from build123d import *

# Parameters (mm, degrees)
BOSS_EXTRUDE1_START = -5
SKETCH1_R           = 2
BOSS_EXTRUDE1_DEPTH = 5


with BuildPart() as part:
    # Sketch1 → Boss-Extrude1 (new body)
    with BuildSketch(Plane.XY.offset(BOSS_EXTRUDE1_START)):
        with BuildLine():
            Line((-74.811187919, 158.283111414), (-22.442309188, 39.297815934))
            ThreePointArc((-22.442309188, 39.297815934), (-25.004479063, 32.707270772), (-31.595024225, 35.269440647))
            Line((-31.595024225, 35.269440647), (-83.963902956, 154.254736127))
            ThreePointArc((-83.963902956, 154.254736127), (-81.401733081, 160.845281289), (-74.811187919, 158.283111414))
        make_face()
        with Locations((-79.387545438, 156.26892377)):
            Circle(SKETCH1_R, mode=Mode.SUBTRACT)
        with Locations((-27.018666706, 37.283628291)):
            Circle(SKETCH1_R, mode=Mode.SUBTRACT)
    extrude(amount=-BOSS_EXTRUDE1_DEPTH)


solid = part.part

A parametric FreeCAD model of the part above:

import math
import FreeCAD as App
import Part
import Sketcher

V = App.Vector

doc = App.newDocument("Part")
body = doc.addObject("PartDesign::Body", "Body")

sketch1 = body.newObject("Sketcher::SketchObject", "Sketch")
sketch1.AttachmentSupport = (doc.getObject("XY_Plane"), [""])
sketch1.MapMode = "FlatFace"
sketch1.AttachmentOffset = App.Placement(V(0, 0, -5), App.Rotation())
sketch1.addGeometry([
    Part.LineSegment(V(-22.442309, 39.297816, 0), V(-74.811188, 158.283111, 0)),
    Part.ArcOfCircle(Part.Circle(V(-79.387545, 156.268924, 0), V(0, 0, 1), 5), math.radians(23.755686), math.radians(203.755686)),
    Part.LineSegment(V(-83.963903, 154.254736, 0), V(-31.595024, 35.269441, 0)),
    Part.ArcOfCircle(Part.Circle(V(-27.018667, 37.283628, 0), V(0, 0, 1), 5), math.radians(-156.244314), math.radians(23.755686)),
    Part.Circle(V(-27.018667, 37.283628, 0), V(0, 0, 1), 2),
    Part.Circle(V(-79.387545, 156.268924, 0), V(0, 0, 1), 2),
], False)
sketch1.addConstraint([
    Sketcher.Constraint("Tangent", 0, 2, 1, 1),
    Sketcher.Constraint("Tangent", 1, 2, 2, 1),
    Sketcher.Constraint("Tangent", 2, 2, 3, 1),
    Sketcher.Constraint("Tangent", 3, 2, 0, 1),
    Sketcher.Constraint("Coincident", 4, 3, 3, 3),
    Sketcher.Constraint("Coincident", 5, 3, 1, 3),
    Sketcher.Constraint("Equal", 1, 3),
    Sketcher.Constraint("Equal", 4, 5),
    Sketcher.Constraint("Diameter", 4, 4.0),
    Sketcher.Constraint("Radius", 1, 5.0),
    Sketcher.Constraint("Distance", 0, 130.0),
    Sketcher.Constraint("DistanceY", -1, 1, 3, 3, 37.283628),
    Sketcher.Constraint("DistanceY", -1, 1, 0, 2, 158.283111),
    Sketcher.Constraint("DistanceX", 3, 2, -1, 1, 22.442309),
])
pad1 = body.newObject("PartDesign::Pad", "Pad")
pad1.Profile = sketch1
pad1.Length = 5
pad1.Reversed = True

doc.recompute()
